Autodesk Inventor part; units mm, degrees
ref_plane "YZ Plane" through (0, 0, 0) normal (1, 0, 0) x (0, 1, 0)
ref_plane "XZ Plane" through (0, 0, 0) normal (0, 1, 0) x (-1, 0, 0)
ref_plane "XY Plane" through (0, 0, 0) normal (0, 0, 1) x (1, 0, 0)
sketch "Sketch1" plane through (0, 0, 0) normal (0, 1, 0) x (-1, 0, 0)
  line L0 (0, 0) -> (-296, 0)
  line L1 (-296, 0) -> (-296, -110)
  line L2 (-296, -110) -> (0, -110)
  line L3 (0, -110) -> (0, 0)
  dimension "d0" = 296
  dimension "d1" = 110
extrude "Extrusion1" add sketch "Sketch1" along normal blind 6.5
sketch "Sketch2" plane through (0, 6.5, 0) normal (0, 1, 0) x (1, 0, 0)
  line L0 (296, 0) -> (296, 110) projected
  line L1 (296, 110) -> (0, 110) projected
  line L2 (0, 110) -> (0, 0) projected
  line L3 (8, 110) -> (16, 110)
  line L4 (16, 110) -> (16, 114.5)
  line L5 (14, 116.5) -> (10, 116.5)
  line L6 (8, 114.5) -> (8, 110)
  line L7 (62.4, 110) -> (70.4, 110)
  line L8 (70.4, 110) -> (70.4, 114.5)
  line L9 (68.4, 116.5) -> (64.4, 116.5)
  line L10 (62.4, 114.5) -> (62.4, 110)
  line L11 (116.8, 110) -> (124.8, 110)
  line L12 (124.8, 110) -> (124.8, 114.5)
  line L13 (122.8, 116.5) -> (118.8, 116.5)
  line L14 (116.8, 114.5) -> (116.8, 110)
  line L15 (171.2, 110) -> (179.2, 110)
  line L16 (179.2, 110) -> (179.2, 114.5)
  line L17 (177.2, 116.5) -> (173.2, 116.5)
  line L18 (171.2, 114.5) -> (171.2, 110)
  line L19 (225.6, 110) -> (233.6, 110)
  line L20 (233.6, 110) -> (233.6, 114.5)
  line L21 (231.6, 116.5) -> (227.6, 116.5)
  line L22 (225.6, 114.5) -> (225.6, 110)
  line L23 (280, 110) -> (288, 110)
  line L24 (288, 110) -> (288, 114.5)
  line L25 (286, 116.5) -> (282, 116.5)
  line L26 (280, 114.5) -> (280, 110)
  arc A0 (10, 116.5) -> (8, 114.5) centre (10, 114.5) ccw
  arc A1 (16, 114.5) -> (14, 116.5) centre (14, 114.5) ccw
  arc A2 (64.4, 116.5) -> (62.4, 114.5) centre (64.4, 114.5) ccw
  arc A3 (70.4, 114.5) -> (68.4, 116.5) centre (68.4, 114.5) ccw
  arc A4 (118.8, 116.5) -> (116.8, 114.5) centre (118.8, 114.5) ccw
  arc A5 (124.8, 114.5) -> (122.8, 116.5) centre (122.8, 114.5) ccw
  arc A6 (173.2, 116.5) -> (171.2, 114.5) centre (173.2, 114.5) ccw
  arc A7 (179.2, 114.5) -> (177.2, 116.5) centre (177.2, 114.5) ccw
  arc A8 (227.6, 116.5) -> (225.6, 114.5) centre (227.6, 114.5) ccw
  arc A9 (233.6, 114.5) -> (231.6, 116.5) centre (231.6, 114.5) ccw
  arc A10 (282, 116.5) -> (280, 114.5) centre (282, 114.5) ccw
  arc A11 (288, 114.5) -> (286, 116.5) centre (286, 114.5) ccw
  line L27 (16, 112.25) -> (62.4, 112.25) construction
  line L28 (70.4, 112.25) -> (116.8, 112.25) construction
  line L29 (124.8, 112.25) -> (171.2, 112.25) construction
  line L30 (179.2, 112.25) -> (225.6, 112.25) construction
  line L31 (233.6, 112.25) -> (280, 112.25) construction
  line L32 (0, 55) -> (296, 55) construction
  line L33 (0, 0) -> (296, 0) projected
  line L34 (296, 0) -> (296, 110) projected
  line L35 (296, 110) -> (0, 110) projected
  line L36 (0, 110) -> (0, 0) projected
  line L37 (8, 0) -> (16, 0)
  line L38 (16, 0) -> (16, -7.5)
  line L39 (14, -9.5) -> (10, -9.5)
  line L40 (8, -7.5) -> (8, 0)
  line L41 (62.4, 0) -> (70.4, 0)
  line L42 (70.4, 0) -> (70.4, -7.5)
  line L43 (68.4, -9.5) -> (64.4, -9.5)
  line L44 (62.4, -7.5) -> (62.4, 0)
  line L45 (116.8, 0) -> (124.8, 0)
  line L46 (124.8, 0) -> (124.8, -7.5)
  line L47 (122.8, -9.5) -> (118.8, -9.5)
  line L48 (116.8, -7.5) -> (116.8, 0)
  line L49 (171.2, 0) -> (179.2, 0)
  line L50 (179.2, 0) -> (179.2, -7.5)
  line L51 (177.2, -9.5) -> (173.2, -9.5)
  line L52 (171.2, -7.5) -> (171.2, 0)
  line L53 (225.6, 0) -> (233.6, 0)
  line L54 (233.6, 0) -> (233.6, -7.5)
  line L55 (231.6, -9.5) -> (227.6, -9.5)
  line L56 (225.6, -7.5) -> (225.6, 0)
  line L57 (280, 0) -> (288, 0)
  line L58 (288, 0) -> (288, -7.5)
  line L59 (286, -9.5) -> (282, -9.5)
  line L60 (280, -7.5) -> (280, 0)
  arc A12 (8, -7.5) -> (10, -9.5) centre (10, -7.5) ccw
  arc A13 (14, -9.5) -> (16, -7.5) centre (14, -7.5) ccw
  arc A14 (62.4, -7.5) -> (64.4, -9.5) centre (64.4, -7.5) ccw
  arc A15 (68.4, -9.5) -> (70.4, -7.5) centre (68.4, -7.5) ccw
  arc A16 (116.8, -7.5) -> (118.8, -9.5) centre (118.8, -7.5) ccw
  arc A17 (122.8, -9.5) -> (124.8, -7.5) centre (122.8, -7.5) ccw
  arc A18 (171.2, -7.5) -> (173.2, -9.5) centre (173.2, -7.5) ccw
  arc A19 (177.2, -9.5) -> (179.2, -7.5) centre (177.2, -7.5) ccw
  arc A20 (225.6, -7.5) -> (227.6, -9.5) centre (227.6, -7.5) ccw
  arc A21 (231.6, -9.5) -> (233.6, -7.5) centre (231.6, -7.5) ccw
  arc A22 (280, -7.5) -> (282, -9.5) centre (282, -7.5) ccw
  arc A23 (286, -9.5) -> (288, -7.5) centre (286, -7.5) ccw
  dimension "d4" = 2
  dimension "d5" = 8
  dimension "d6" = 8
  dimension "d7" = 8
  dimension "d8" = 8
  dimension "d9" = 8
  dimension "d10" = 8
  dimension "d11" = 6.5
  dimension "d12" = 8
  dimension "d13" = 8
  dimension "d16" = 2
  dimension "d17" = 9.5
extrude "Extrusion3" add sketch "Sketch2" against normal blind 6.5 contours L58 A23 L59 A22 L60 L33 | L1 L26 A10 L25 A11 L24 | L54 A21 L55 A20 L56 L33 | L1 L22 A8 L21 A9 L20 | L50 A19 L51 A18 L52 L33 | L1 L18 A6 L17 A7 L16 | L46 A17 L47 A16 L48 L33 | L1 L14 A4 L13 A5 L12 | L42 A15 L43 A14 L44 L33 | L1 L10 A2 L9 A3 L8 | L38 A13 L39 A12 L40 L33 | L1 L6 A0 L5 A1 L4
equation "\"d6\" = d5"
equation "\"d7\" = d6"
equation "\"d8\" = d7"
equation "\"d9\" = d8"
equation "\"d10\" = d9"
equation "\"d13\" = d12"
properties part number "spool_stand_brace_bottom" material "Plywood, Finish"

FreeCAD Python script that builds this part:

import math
import FreeCAD as App
import Part
import Sketcher
from FreeCAD import Vector
Q = App.Units.Quantity

doc = App.newDocument("Part")
body = doc.addObject("PartDesign::Body", "Body")

# Sketch on XZ plane
sketch1 = body.newObject("Sketcher::SketchObject", "Sketch")
sketch1.AttachmentSupport = (doc.getObject("XZ_Plane"), [""])
sketch1.MapMode = "FlatFace"
sketch1.addGeometry(Part.LineSegment(Vector(0, -110, 0), Vector(0, 0, 0)), False)
sketch1.addGeometry(Part.LineSegment(Vector(0, 0, 0), Vector(296, 0, 0)), False)
sketch1.addGeometry(Part.LineSegment(Vector(296, 0, 0), Vector(296, -110, 0)), False)
sketch1.addGeometry(Part.LineSegment(Vector(296, -110, 0), Vector(0, -110, 0)), False)
sketch1.addConstraint(Sketcher.Constraint("Coincident", 0, 2, 1, 1))
sketch1.addConstraint(Sketcher.Constraint("Coincident", 1, 2, 2, 1))
sketch1.addConstraint(Sketcher.Constraint("Coincident", 2, 2, 3, 1))
sketch1.addConstraint(Sketcher.Constraint("Coincident", 3, 2, 0, 1))
sketch1.addConstraint(Sketcher.Constraint("Vertical", 0))
sketch1.addConstraint(Sketcher.Constraint("Horizontal", 1))
sketch1.addConstraint(Sketcher.Constraint("Vertical", 2))
sketch1.addConstraint(Sketcher.Constraint("Horizontal", 3))
sketch1.addConstraint(Sketcher.Constraint("Coincident", 0, 2, -1, 1))
sketch1.addConstraint(Sketcher.Constraint("DistanceX", 1, 1, 1, 2, Q("296 mm")))
sketch1.addConstraint(Sketcher.Constraint("DistanceY", 0, 1, 0, 2, Q("110 mm")))
pad1 = body.newObject("PartDesign::Pad", "Pad")
pad1.Profile = sketch1
pad1.Length = 6.5
pad1.Reversed = True

# Sketch on XZ plane
sketch2 = body.newObject("Sketcher::SketchObject", "Sketch001")
sketch2.AttachmentSupport = (doc.getObject("XZ_Plane"), [""])
sketch2.MapMode = "FlatFace"
sketch2.AttachmentOffset = App.Placement(Vector(0, 0, -6.5), App.Rotation())
sketch2.addGeometry(Part.LineSegment(Vector(288, 7.5, 0), Vector(288, 0, 0)), False)
sketch2.addGeometry(Part.LineSegment(Vector(288, 0, 0), Vector(280, 0, 0)), False)
sketch2.addGeometry(Part.LineSegment(Vector(280, 0, 0), Vector(280, 7.5, 0)), False)
sketch2.addGeometry(Part.ArcOfCircle(Part.Circle(Vector(282, 7.5, 0), Vector(0, 0, 1), 2), math.radians(90), math.radians(180)), False)
sketch2.addGeometry(Part.LineSegment(Vector(282, 9.5, 0), Vector(286, 9.5, 0)), False)
sketch2.addGeometry(Part.ArcOfCircle(Part.Circle(Vector(286, 7.5, 0), Vector(0, 0, 1), 2), math.radians(0), math.radians(90)), False)
sketch2.addGeometry(Part.LineSegment(Vector(280, -110, 0), Vector(288, -110, 0)), False)
sketch2.addGeometry(Part.LineSegment(Vector(288, -110, 0), Vector(288, -114.5, 0)), False)
sketch2.addGeometry(Part.ArcOfCircle(Part.Circle(Vector(286, -114.5, 0), Vector(0, 0, 1), 2), math.radians(-90), math.radians(0)), False)
sketch2.addGeometry(Part.LineSegment(Vector(286, -116.5, 0), Vector(282, -116.5, 0)), False)
sketch2.addGeometry(Part.ArcOfCircle(Part.Circle(Vector(282, -114.5, 0), Vector(0, 0, 1), 2), math.radians(180), math.radians(270)), False)
sketch2.addGeometry(Part.LineSegment(Vector(280, -114.5, 0), Vector(280, -110, 0)), False)
sketch2.addGeometry(Part.LineSegment(Vector(233.6, 7.5, 0), Vector(233.6, 0, 0)), False)
sketch2.addGeometry(Part.LineSegment(Vector(233.6, 0, 0), Vector(225.6, 0, 0)), False)
sketch2.addGeometry(Part.LineSegment(Vector(225.6, 0, 0), Vector(225.6, 7.5, 0)), False)
sketch2.addGeometry(Part.ArcOfCircle(Part.Circle(Vector(227.6, 7.5, 0), Vector(0, 0, 1), 2), math.radians(90), math.radians(180)), False)
sketch2.addGeometry(Part.LineSegment(Vector(227.6, 9.5, 0), Vector(231.6, 9.5, 0)), False)
sketch2.addGeometry(Part.ArcOfCircle(Part.Circle(Vector(231.6, 7.5, 0), Vector(0, 0, 1), 2), math.radians(0), math.radians(90)), False)
sketch2.addGeometry(Part.LineSegment(Vector(225.6, -110, 0), Vector(233.6, -110, 0)), False)
sketch2.addGeometry(Part.LineSegment(Vector(233.6, -110, 0), Vector(233.6, -114.5, 0)), False)
sketch2.addGeometry(Part.ArcOfCircle(Part.Circle(Vector(231.6, -114.5, 0), Vector(0, 0, 1), 2), math.radians(-90), math.radians(0)), False)
sketch2.addGeometry(Part.LineSegment(Vector(231.6, -116.5, 0), Vector(227.6, -116.5, 0)), False)
sketch2.addGeometry(Part.ArcOfCircle(Part.Circle(Vector(227.6, -114.5, 0), Vector(0, 0, 1), 2), math.radians(180), math.radians(270)), False)
sketch2.addGeometry(Part.LineSegment(Vector(225.6, -114.5, 0), Vector(225.6, -110, 0)), False)
sketch2.addGeometry(Part.LineSegment(Vector(179.2, 7.5, 0), Vector(179.2, 0, 0)), False)
sketch2.addGeometry(Part.LineSegment(Vector(179.2, 0, 0), Vector(171.2, 0, 0)), False)
sketch2.addGeometry(Part.LineSegment(Vector(171.2, 0, 0), Vector(171.2, 7.5, 0)), False)
sketch2.addGeometry(Part.ArcOfCircle(Part.Circle(Vector(173.2, 7.5, 0), Vector(0, 0, 1), 2), math.radians(90), math.radians(180)), False)
sketch2.addGeometry(Part.LineSegment(Vector(173.2, 9.5, 0), Vector(177.2, 9.5, 0)), False)
sketch2.addGeometry(Part.ArcOfCircle(Part.Circle(Vector(177.2, 7.5, 0), Vector(0, 0, 1), 2), math.radians(0), math.radians(90)), False)
sketch2.addGeometry(Part.LineSegment(Vector(171.2, -110, 0), Vector(179.2, -110, 0)), False)
sketch2.addGeometry(Part.LineSegment(Vector(179.2, -110, 0), Vector(179.2, -114.5, 0)), False)
sketch2.addGeometry(Part.ArcOfCircle(Part.Circle(Vector(177.2, -114.5, 0), Vector(0, 0, 1), 2), math.radians(-90), math.radians(0)), False)
sketch2.addGeometry(Part.LineSegment(Vector(177.2, -116.5, 0), Vector(173.2, -116.5, 0)), False)
sketch2.addGeometry(Part.ArcOfCircle(Part.Circle(Vector(173.2, -114.5, 0), Vector(0, 0, 1), 2), math.radians(180), math.radians(270)), False)
sketch2.addGeometry(Part.LineSegment(Vector(171.2, -114.5, 0), Vector(171.2, -110, 0)), False)
sketch2.addGeometry(Part.LineSegment(Vector(124.8, 7.5, 0), Vector(124.8, 0, 0)), False)
sketch2.addGeometry(Part.LineSegment(Vector(124.8, 0, 0), Vector(116.8, 0, 0)), False)
sketch2.addGeometry(Part.LineSegment(Vector(116.8, 0, 0), Vector(116.8, 7.5, 0)), False)
sketch2.addGeometry(Part.ArcOfCircle(Part.Circle(Vector(118.8, 7.5, 0), Vector(0, 0, 1), 2), math.radians(90), math.radians(180)), False)
sketch2.addGeometry(Part.LineSegment(Vector(118.8, 9.5, 0), Vector(122.8, 9.5, 0)), False)
sketch2.addGeometry(Part.ArcOfCircle(Part.Circle(Vector(122.8, 7.5, 0), Vector(0, 0, 1), 2), math.radians(0), math.radians(90)), False)
sketch2.addGeometry(Part.LineSegment(Vector(116.8, -110, 0), Vector(124.8, -110, 0)), False)
sketch2.addGeometry(Part.LineSegment(Vector(124.8, -110, 0), Vector(124.8, -114.5, 0)), False)
sketch2.addGeometry(Part.ArcOfCircle(Part.Circle(Vector(122.8, -114.5, 0), Vector(0, 0, 1), 2), math.radians(-90), math.radians(0)), False)
sketch2.addGeometry(Part.LineSegment(Vector(122.8, -116.5, 0), Vector(118.8, -116.5, 0)), False)
sketch2.addGeometry(Part.ArcOfCircle(Part.Circle(Vector(118.8, -114.5, 0), Vector(0, 0, 1), 2), math.radians(180), math.radians(270)), False)
sketch2.addGeometry(Part.LineSegment(Vector(116.8, -114.5, 0), Vector(116.8, -110, 0)), False)
sketch2.addGeometry(Part.LineSegment(Vector(70.4, 7.5, 0), Vector(70.4, 0, 0)), False)
sketch2.addGeometry(Part.LineSegment(Vector(70.4, 0, 0), Vector(62.4, 0, 0)), False)
sketch2.addGeometry(Part.LineSegment(Vector(62.4, 0, 0), Vector(62.4, 7.5, 0)), False)
sketch2.addGeometry(Part.ArcOfCircle(Part.Circle(Vector(64.4, 7.5, 0), Vector(0, 0, 1), 2), math.radians(90), math.radians(180)), False)
sketch2.addGeometry(Part.LineSegment(Vector(64.4, 9.5, 0), Vector(68.4, 9.5, 0)), False)
sketch2.addGeometry(Part.ArcOfCircle(Part.Circle(Vector(68.4, 7.5, 0), Vector(0, 0, 1), 2), math.radians(0), math.radians(90)), False)
sketch2.addGeometry(Part.LineSegment(Vector(62.4, -110, 0), Vector(70.4, -110, 0)), False)
sketch2.addGeometry(Part.LineSegment(Vector(70.4, -110, 0), Vector(70.4, -114.5, 0)), False)
sketch2.addGeometry(Part.ArcOfCircle(Part.Circle(Vector(68.4, -114.5, 0), Vector(0, 0, 1), 2), math.radians(-90), math.radians(0)), False)
sketch2.addGeometry(Part.LineSegment(Vector(68.4, -116.5, 0), Vector(64.4, -116.5, 0)), False)
sketch2.addGeometry(Part.ArcOfCircle(Part.Circle(Vector(64.4, -114.5, 0), Vector(0, 0, 1), 2), math.radians(180), math.radians(270)), False)
sketch2.addGeometry(Part.LineSegment(Vector(62.4, -114.5, 0), Vector(62.4, -110, 0)), False)
sketch2.addGeometry(Part.LineSegment(Vector(16, 7.5, 0), Vector(16, 0, 0)), False)
sketch2.addGeometry(Part.LineSegment(Vector(16, 0, 0), Vector(8, 0, 0)), False)
sketch2.addGeometry(Part.LineSegment(Vector(8, 0, 0), Vector(8, 7.5, 0)), False)
sketch2.addGeometry(Part.ArcOfCircle(Part.Circle(Vector(10, 7.5, 0), Vector(0, 0, 1), 2), math.radians(90), math.radians(180)), False)
sketch2.addGeometry(Part.LineSegment(Vector(10, 9.5, 0), Vector(14, 9.5, 0)), False)
sketch2.addGeometry(Part.ArcOfCircle(Part.Circle(Vector(14, 7.5, 0), Vector(0, 0, 1), 2), math.radians(0), math.radians(90)), False)
sketch2.addGeometry(Part.LineSegment(Vector(8, -110, 0), Vector(16, -110, 0)), False)
sketch2.addGeometry(Part.LineSegment(Vector(16, -110, 0), Vector(16, -114.5, 0)), False)
sketch2.addGeometry(Part.ArcOfCircle(Part.Circle(Vector(14, -114.5, 0), Vector(0, 0, 1), 2), math.radians(-90), math.radians(0)), False)
sketch2.addGeometry(Part.LineSegment(Vector(14, -116.5, 0), Vector(10, -116.5, 0)), False)
sketch2.addGeometry(Part.ArcOfCircle(Part.Circle(Vector(10, -114.5, 0), Vector(0, 0, 1), 2), math.radians(180), math.radians(270)), False)
sketch2.addGeometry(Part.LineSegment(Vector(8, -114.5, 0), Vector(8, -110, 0)), False)
sketch2.addConstraint(Sketcher.Constraint("Coincident", 0, 2, 1, 1))
sketch2.addConstraint(Sketcher.Constraint("Coincident", 1, 2, 2, 1))
sketch2.addConstraint(Sketcher.Constraint("Tangent", 2, 2, 3, 2))
sketch2.addConstraint(Sketcher.Constraint("Tangent", 3, 1, 4, 1))
sketch2.addConstraint(Sketcher.Constraint("Tangent", 4, 2, 5, 2))
sketch2.addConstraint(Sketcher.Constraint("Tangent", 5, 1, 0, 1))
sketch2.addConstraint(Sketcher.Constraint("Coincident", 6, 2, 7, 1))
sketch2.addConstraint(Sketcher.Constraint("Tangent", 7, 2, 8, 2))
sketch2.addConstraint(Sketcher.Constraint("Tangent", 8, 1, 9, 1))
sketch2.addConstraint(Sketcher.Constraint("Tangent", 9, 2, 10, 2))
sketch2.addConstraint(Sketcher.Constraint("Tangent", 10, 1, 11, 1))
sketch2.addConstraint(Sketcher.Constraint("Coincident", 11, 2, 6, 1))
sketch2.addConstraint(Sketcher.Constraint("Coincident", 12, 2, 13, 1))
sketch2.addConstraint(Sketcher.Constraint("Coincident", 13, 2, 14, 1))
sketch2.addConstraint(Sketcher.Constraint("Tangent", 14, 2, 15, 2))
sketch2.addConstraint(Sketcher.Constraint("Tangent", 15, 1, 16, 1))
sketch2.addConstraint(Sketcher.Constraint("Tangent", 16, 2, 17, 2))
sketch2.addConstraint(Sketcher.Constraint("Tangent", 17, 1, 12, 1))
sketch2.addConstraint(Sketcher.Constraint("Coincident", 18, 2, 19, 1))
sketch2.addConstraint(Sketcher.Constraint("Tangent", 19, 2, 20, 2))
sketch2.addConstraint(Sketcher.Constraint("Tangent", 20, 1, 21, 1))
sketch2.addConstraint(Sketcher.Constraint("Tangent", 21, 2, 22, 2))
sketch2.addConstraint(Sketcher.Constraint("Tangent", 22, 1, 23, 1))
sketch2.addConstraint(Sketcher.Constraint("Coincident", 23, 2, 18, 1))
sketch2.addConstraint(Sketcher.Constraint("Coincident", 24, 2, 25, 1))
sketch2.addConstraint(Sketcher.Constraint("Coincident", 25, 2, 26, 1))
sketch2.addConstraint(Sketcher.Constraint("Tangent", 26, 2, 27, 2))
sketch2.addConstraint(Sketcher.Constraint("Tangent", 27, 1, 28, 1))
sketch2.addConstraint(Sketcher.Constraint("Tangent", 28, 2, 29, 2))
sketch2.addConstraint(Sketcher.Constraint("Tangent", 29, 1, 24, 1))
sketch2.addConstraint(Sketcher.Constraint("Coincident", 30, 2, 31, 1))
sketch2.addConstraint(Sketcher.Constraint("Tangent", 31, 2, 32, 2))
sketch2.addConstraint(Sketcher.Constraint("Tangent", 32, 1, 33, 1))
sketch2.addConstraint(Sketcher.Constraint("Tangent", 33, 2, 34, 2))
sketch2.addConstraint(Sketcher.Constraint("Tangent", 34, 1, 35, 1))
sketch2.addConstraint(Sketcher.Constraint("Coincident", 35, 2, 30, 1))
sketch2.addConstraint(Sketcher.Constraint("Coincident", 36, 2, 37, 1))
sketch2.addConstraint(Sketcher.Constraint("Coincident", 37, 2, 38, 1))
sketch2.addConstraint(Sketcher.Constraint("Tangent", 38, 2, 39, 2))
sketch2.addConstraint(Sketcher.Constraint("Tangent", 39, 1, 40, 1))
sketch2.addConstraint(Sketcher.Constraint("Tangent", 40, 2, 41, 2))
sketch2.addConstraint(Sketcher.Constraint("Tangent", 41, 1, 36, 1))
sketch2.addConstraint(Sketcher.Constraint("Coincident", 42, 2, 43, 1))
sketch2.addConstraint(Sketcher.Constraint("Tangent", 43, 2, 44, 2))
sketch2.addConstraint(Sketcher.Constraint("Tangent", 44, 1, 45, 1))
sketch2.addConstraint(Sketcher.Constraint("Tangent", 45, 2, 46, 2))
sketch2.addConstraint(Sketcher.Constraint("Tangent", 46, 1, 47, 1))
sketch2.addConstraint(Sketcher.Constraint("Coincident", 47, 2, 42, 1))
sketch2.addConstraint(Sketcher.Constraint("Coincident", 48, 2, 49, 1))
sketch2.addConstraint(Sketcher.Constraint("Coincident", 49, 2, 50, 1))
sketch2.addConstraint(Sketcher.Constraint("Tangent", 50, 2, 51, 2))
sketch2.addConstraint(Sketcher.Constraint("Tangent", 51, 1, 52, 1))
sketch2.addConstraint(Sketcher.Constraint("Tangent", 52, 2, 53, 2))
sketch2.addConstraint(Sketcher.Constraint("Tangent", 53, 1, 48, 1))
sketch2.addConstraint(Sketcher.Constraint("Coincident", 54, 2, 55, 1))
sketch2.addConstraint(Sketcher.Constraint("Tangent", 55, 2, 56, 2))
sketch2.addConstraint(Sketcher.Constraint("Tangent", 56, 1, 57, 1))
sketch2.addConstraint(Sketcher.Constraint("Tangent", 57, 2, 58, 2))
sketch2.addConstraint(Sketcher.Constraint("Tangent", 58, 1, 59, 1))
sketch2.addConstraint(Sketcher.Constraint("Coincident", 59, 2, 54, 1))
sketch2.addConstraint(Sketcher.Constraint("Coincident", 60, 2, 61, 1))
sketch2.addConstraint(Sketcher.Constraint("Coincident", 61, 2, 62, 1))
sketch2.addConstraint(Sketcher.Constraint("Tangent", 62, 2, 63, 2))
sketch2.addConstraint(Sketcher.Constraint("Tangent", 63, 1, 64, 1))
sketch2.addConstraint(Sketcher.Constraint("Tangent", 64, 2, 65, 2))
sketch2.addConstraint(Sketcher.Constraint("Tangent", 65, 1, 60, 1))
sketch2.addConstraint(Sketcher.Constraint("Coincident", 66, 2, 67, 1))
sketch2.addConstraint(Sketcher.Constraint("Tangent", 67, 2, 68, 2))
sketch2.addConstraint(Sketcher.Constraint("Tangent", 68, 1, 69, 1))
sketch2.addConstraint(Sketcher.Constraint("Tangent", 69, 2, 70, 2))
sketch2.addConstraint(Sketcher.Constraint("Tangent", 70, 1, 71, 1))
sketch2.addConstraint(Sketcher.Constraint("Coincident", 71, 2, 66, 1))
sketch2.addConstraint(Sketcher.Constraint("Vertical", 0))
sketch2.addConstraint(Sketcher.Constraint("Horizontal", 1))
sketch2.addConstraint(Sketcher.Constraint("Vertical", 2))
sketch2.addConstraint(Sketcher.Constraint("Horizontal", 4))
sketch2.addConstraint(Sketcher.Constraint("Horizontal", 6))
sketch2.addConstraint(Sketcher.Constraint("Vertical", 7))
sketch2.addConstraint(Sketcher.Constraint("Horizontal", 9))
sketch2.addConstraint(Sketcher.Constraint("Vertical", 11))
sketch2.addConstraint(Sketcher.Constraint("Vertical", 12))
sketch2.addConstraint(Sketcher.Constraint("Horizontal", 13))
sketch2.addConstraint(Sketcher.Constraint("Vertical", 14))
sketch2.addConstraint(Sketcher.Constraint("Horizontal", 16))
sketch2.addConstraint(Sketcher.Constraint("Horizontal", 18))
sketch2.addConstraint(Sketcher.Constraint("Vertical", 19))
sketch2.addConstraint(Sketcher.Constraint("Horizontal", 21))
sketch2.addConstraint(Sketcher.Constraint("Vertical", 23))
sketch2.addConstraint(Sketcher.Constraint("Vertical", 24))
sketch2.addConstraint(Sketcher.Constraint("Horizontal", 25))
sketch2.addConstraint(Sketcher.Constraint("Vertical", 26))
sketch2.addConstraint(Sketcher.Constraint("Horizontal", 28))
sketch2.addConstraint(Sketcher.Constraint("Horizontal", 30))
sketch2.addConstraint(Sketcher.Constraint("Vertical", 31))
sketch2.addConstraint(Sketcher.Constraint("Horizontal", 33))
sketch2.addConstraint(Sketcher.Constraint("Vertical", 35))
sketch2.addConstraint(Sketcher.Constraint("Vertical", 36))
sketch2.addConstraint(Sketcher.Constraint("Horizontal", 37))
sketch2.addConstraint(Sketcher.Constraint("Vertical", 38))
sketch2.addConstraint(Sketcher.Constraint("Horizontal", 40))
sketch2.addConstraint(Sketcher.Constraint("Horizontal", 42))
sketch2.addConstraint(Sketcher.Constraint("Vertical", 43))
sketch2.addConstraint(Sketcher.Constraint("Horizontal", 45))
sketch2.addConstraint(Sketcher.Constraint("Vertical", 47))
sketch2.addConstraint(Sketcher.Constraint("Vertical", 48))
sketch2.addConstraint(Sketcher.Constraint("Horizontal", 49))
sketch2.addConstraint(Sketcher.Constraint("Vertical", 50))
sketch2.addConstraint(Sketcher.Constraint("Horizontal", 52))
sketch2.addConstraint(Sketcher.Constraint("Horizontal", 54))
sketch2.addConstraint(Sketcher.Constraint("Vertical", 55))
sketch2.addConstraint(Sketcher.Constraint("Horizontal", 57))
sketch2.addConstraint(Sketcher.Constraint("Vertical", 59))
sketch2.addConstraint(Sketcher.Constraint("Vertical", 60))
sketch2.addConstraint(Sketcher.Constraint("Horizontal", 61))
sketch2.addConstraint(Sketcher.Constraint("Vertical", 62))
sketch2.addConstraint(Sketcher.Constraint("Horizontal", 64))
sketch2.addConstraint(Sketcher.Constraint("Horizontal", 66))
sketch2.addConstraint(Sketcher.Constraint("Vertical", 67))
sketch2.addConstraint(Sketcher.Constraint("Horizontal", 69))
sketch2.addConstraint(Sketcher.Constraint("Vertical", 71))
sketch2.addConstraint(Sketcher.Constraint("Equal", 3, 5))
sketch2.addConstraint(Sketcher.Constraint("Equal", 5, 8))
sketch2.addConstraint(Sketcher.Constraint("Equal", 8, 10))
sketch2.addConstraint(Sketcher.Constraint("Equal", 10, 15))
sketch2.addConstraint(Sketcher.Constraint("Equal", 15, 17))
sketch2.addConstraint(Sketcher.Constraint("Equal", 17, 20))
sketch2.addConstraint(Sketcher.Constraint("Equal", 20, 22))
sketch2.addConstraint(Sketcher.Constraint("Equal", 22, 27))
sketch2.addConstraint(Sketcher.Constraint("Equal", 27, 29))
sketch2.addConstraint(Sketcher.Constraint("Equal", 29, 32))
sketch2.addConstraint(Sketcher.Constraint("Equal", 32, 34))
sketch2.addConstraint(Sketcher.Constraint("Equal", 34, 39))
sketch2.addConstraint(Sketcher.Constraint("Equal", 39, 41))
sketch2.addConstraint(Sketcher.Constraint("Equal", 41, 44))
sketch2.addConstraint(Sketcher.Constraint("Equal", 44, 46))
sketch2.addConstraint(Sketcher.Constraint("Equal", 46, 51))
sketch2.addConstraint(Sketcher.Constraint("Equal", 51, 53))
sketch2.addConstraint(Sketcher.Constraint("Equal", 53, 56))
sketch2.addConstraint(Sketcher.Constraint("Equal", 56, 58))
sketch2.addConstraint(Sketcher.Constraint("Equal", 58, 63))
sketch2.addConstraint(Sketcher.Constraint("Equal", 63, 65))
sketch2.addConstraint(Sketcher.Constraint("Equal", 65, 68))
sketch2.addConstraint(Sketcher.Constraint("Equal", 68, 70))
sketch2.addConstraint(Sketcher.Constraint("PointOnObject", 0, 2, -1))
sketch2.addConstraint(Sketcher.Constraint("PointOnObject", 12, 2, -1))
sketch2.addConstraint(Sketcher.Constraint("PointOnObject", 24, 2, -1))
sketch2.addConstraint(Sketcher.Constraint("PointOnObject", 36, 2, -1))
sketch2.addConstraint(Sketcher.Constraint("PointOnObject", 48, 2, -1))
sketch2.addConstraint(Sketcher.Constraint("PointOnObject", 60, 2, -1))
sketch2.addConstraint(Sketcher.Constraint("Horizontal", 5, 3, 15, 3))
sketch2.addConstraint(Sketcher.Constraint("Horizontal", 10, 3, 20, 3))
sketch2.addConstraint(Sketcher.Constraint("Horizontal", 17, 3, 27, 3))
sketch2.addConstraint(Sketcher.Constraint("Horizontal", 22, 3, 32, 3))
sketch2.addConstraint(Sketcher.Constraint("Horizontal", 29, 3, 39, 3))
sketch2.addConstraint(Sketcher.Constraint("Horizontal", 34, 3, 44, 3))
sketch2.addConstraint(Sketcher.Constraint("Horizontal", 41, 3, 51, 3))
sketch2.addConstraint(Sketcher.Constraint("Horizontal", 46, 3, 56, 3))
sketch2.addConstraint(Sketcher.Constraint("Horizontal", 53, 3, 63, 3))
sketch2.addConstraint(Sketcher.Constraint("Horizontal", 58, 3, 68, 3))
sketch2.addConstraint(Sketcher.Constraint("Horizontal", 11, 2, 18, 2))
sketch2.addConstraint(Sketcher.Constraint("Horizontal", 23, 2, 30, 2))
sketch2.addConstraint(Sketcher.Constraint("Horizontal", 35, 2, 42, 2))
sketch2.addConstraint(Sketcher.Constraint("Horizontal", 47, 2, 54, 2))
sketch2.addConstraint(Sketcher.Constraint("Horizontal", 59, 2, 66, 2))
sketch2.addConstraint(Sketcher.Constraint("Vertical", 5, 3, 8, 3))
sketch2.addConstraint(Sketcher.Constraint("Vertical", 3, 3, 10, 3))
sketch2.addConstraint(Sketcher.Constraint("Vertical", 17, 3, 20, 3))
sketch2.addConstraint(Sketcher.Constraint("Vertical", 15, 3, 22, 3))
sketch2.addConstraint(Sketcher.Constraint("Vertical", 29, 3, 32, 3))
sketch2.addConstraint(Sketcher.Constraint("Vertical", 27, 3, 34, 3))
sketch2.addConstraint(Sketcher.Constraint("Vertical", 41, 3, 44, 3))
sketch2.addConstraint(Sketcher.Constraint("Vertical", 39, 3, 46, 3))
sketch2.addConstraint(Sketcher.Constraint("Vertical", 53, 3, 56, 3))
sketch2.addConstraint(Sketcher.Constraint("Vertical", 51, 3, 58, 3))
sketch2.addConstraint(Sketcher.Constraint("Vertical", 65, 3, 68, 3))
sketch2.addConstraint(Sketcher.Constraint("Vertical", 63, 3, 70, 3))
sketch2.addConstraint(Sketcher.Constraint("Equal", 6, 13))
sketch2.addConstraint(Sketcher.Constraint("Equal", 18, 25))
sketch2.addConstraint(Sketcher.Constraint("Equal", 30, 37))
sketch2.addConstraint(Sketcher.Constraint("Equal", 42, 49))
sketch2.addConstraint(Sketcher.Constraint("Equal", 54, 61))
sketch2.addConstraint(Sketcher.Constraint("Radius", 3, Q("2 mm")))
sketch2.addConstraint(Sketcher.Constraint("DistanceX", 1, 2, 1, 1, Q("8 mm")))
sketch2.addConstraint(Sketcher.Constraint("DistanceX", -1, 1, 61, 2, Q("8 mm")))
sketch2.addConstraint(Sketcher.Constraint("DistanceY", -1, 1, 3, 1, Q("9.5 mm")))
sketch2.addConstraint(Sketcher.Constraint("DistanceY", 7, 2, 7, 1, Q("4.5 mm")))
sketch2.addConstraint(Sketcher.Constraint("DistanceX", -1, 1, 3, 3, Q("282 mm")))
sketch2.addConstraint(Sketcher.Constraint("DistanceY", 6, 2, -1, 1, Q("110 mm")))
sketch2.addConstraint(Sketcher.Constraint("DistanceX", -1, 1, 15, 3, Q("227.6 mm")))
sketch2.addConstraint(Sketcher.Constraint("DistanceX", -1, 1, 27, 3, Q("173.2 mm")))
sketch2.addConstraint(Sketcher.Constraint("DistanceX", -1, 1, 39, 3, Q("118.8 mm")))
sketch2.addConstraint(Sketcher.Constraint("DistanceX", -1, 1, 51, 3, Q("64.4 mm")))
pad2 = body.newObject("PartDesign::Pad", "Pad001")
pad2.Profile = sketch2
pad2.Length = 6.5

doc.recompute()
